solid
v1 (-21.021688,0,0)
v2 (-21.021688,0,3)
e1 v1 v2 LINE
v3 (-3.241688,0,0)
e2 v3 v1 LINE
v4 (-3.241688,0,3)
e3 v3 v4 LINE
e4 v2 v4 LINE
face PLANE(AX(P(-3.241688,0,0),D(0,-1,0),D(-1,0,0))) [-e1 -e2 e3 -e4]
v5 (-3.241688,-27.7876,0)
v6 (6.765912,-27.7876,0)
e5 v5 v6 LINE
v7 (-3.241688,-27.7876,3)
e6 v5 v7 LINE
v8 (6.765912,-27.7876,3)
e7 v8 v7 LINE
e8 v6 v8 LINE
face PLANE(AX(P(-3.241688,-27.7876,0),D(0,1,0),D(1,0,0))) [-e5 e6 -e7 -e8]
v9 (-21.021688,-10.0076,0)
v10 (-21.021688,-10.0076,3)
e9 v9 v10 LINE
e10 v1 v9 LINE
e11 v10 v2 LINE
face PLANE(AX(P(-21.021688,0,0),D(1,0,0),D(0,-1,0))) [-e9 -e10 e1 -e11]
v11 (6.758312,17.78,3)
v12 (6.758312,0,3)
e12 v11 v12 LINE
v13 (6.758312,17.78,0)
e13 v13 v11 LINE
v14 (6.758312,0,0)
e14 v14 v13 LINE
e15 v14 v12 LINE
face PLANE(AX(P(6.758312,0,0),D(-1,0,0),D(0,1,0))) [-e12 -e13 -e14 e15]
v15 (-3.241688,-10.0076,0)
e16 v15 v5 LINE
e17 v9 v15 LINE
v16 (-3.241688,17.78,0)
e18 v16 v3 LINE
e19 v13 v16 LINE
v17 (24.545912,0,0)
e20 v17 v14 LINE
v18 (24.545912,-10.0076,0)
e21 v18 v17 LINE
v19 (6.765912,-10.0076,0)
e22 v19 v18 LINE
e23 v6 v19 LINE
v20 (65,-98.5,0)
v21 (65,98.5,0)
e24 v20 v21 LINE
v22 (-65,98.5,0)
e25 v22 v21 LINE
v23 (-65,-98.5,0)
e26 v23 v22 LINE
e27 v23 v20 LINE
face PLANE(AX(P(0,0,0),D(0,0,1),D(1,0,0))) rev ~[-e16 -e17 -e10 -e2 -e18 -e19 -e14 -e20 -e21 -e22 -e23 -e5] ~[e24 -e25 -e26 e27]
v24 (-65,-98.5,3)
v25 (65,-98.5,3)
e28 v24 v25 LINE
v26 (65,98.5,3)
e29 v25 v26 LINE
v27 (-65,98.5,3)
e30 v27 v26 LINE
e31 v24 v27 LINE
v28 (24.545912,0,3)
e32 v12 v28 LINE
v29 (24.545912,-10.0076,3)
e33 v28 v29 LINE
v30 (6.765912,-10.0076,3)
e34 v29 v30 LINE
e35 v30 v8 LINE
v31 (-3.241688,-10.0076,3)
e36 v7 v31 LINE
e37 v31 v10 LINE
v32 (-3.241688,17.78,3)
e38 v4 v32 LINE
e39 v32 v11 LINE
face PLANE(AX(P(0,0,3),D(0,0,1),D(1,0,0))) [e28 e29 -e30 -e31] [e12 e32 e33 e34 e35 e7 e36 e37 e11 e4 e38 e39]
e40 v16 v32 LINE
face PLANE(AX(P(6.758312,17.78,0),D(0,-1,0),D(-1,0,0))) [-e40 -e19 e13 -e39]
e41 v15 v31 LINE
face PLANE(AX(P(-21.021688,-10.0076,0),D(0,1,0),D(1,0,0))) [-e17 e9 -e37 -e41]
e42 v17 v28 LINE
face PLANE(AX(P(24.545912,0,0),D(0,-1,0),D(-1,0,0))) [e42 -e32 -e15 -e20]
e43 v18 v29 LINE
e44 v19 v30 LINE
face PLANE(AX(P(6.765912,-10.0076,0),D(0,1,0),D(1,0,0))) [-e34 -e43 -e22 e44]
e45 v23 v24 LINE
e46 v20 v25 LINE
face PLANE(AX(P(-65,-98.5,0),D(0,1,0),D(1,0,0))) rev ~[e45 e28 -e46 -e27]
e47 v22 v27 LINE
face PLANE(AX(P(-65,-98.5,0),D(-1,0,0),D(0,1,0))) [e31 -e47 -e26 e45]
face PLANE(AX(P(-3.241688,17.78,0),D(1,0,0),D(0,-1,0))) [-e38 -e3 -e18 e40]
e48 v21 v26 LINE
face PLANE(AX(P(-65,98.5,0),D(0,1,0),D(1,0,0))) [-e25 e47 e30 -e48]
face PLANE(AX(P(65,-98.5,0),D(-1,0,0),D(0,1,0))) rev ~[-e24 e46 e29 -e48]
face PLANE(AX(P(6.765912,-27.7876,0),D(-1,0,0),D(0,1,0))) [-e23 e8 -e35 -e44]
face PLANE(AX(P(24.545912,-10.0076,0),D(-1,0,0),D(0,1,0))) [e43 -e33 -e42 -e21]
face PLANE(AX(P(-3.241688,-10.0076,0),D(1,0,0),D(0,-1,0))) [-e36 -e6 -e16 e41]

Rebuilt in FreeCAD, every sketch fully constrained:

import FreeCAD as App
import Part
import Sketcher
from FreeCAD import Vector
Q = App.Units.Quantity


def add_polygon(sketch, points):
    """Adds a closed chain of lines whose ends are joined by coincident constraints."""
    first, n = sketch.GeometryCount, len(points)
    for a, b in zip(points, points[1:] + points[:1]):
        sketch.addGeometry(Part.LineSegment(App.Vector(*a, 0), App.Vector(*b, 0)), False)
    for i in range(n):
        sketch.addConstraint(Sketcher.Constraint("Coincident", first + i, 2, first + (i + 1) % n, 1))

doc = App.newDocument("Part")
params = doc.addObject("Spreadsheet::Sheet", "Params")
for row, (alias, value) in enumerate([
    ("sketch1_width", "130 mm"),
    ("sketch1_height", "197 mm"),
    ("pad1_length", "3 mm"),
    ("sketch2_width", "10 mm"),
    ("sketch2_width2", "17.78 mm"),
    ("pocket1_length", "9.652 mm"),
], start=1):
    params.set(f"A{row}", alias)
    params.set(f"B{row}", "=" + value)
    params.setAlias(f"B{row}", alias)

body = doc.addObject("PartDesign::Body", "Body")

sketch1 = body.newObject("Sketcher::SketchObject", "Sketch")
sketch1.AttachmentSupport = (doc.getObject("XY_Plane"), [""])
sketch1.MapMode = "FlatFace"
add_polygon(sketch1, [(-65, 98), (-65, -98), (65, -98), (65, 98)])
sketch1.addConstraint([
    Sketcher.Constraint("Vertical", 0),
    Sketcher.Constraint("Horizontal", 1),
    Sketcher.Constraint("Vertical", 2),
    Sketcher.Constraint("Horizontal", 3),
    Sketcher.Constraint("Symmetric", 0, 2, 2, 2, -1, 1),
    Sketcher.Constraint("DistanceX", 1, 1, 1, 2, Q("130 mm")),
    Sketcher.Constraint("DistanceY", 0, 2, 0, 1, Q("197 mm")),
])
sketch1.setExpression("Constraints[9]", "Params.sketch1_width")
sketch1.setExpression("Constraints[10]", "Params.sketch1_height")
pad1 = body.newObject("PartDesign::Pad", "Pad")
pad1.Profile = sketch1
pad1.setExpression("Length", "Params.pad1_length")

sketch2 = body.newObject("Sketcher::SketchObject", "Sketch001")
sketch2.AttachmentSupport = (doc.getObject("XY_Plane"), [""])
sketch2.MapMode = "FlatFace"
add_polygon(sketch2, [(7, 0), (7, 18), (-3, 18), (-3, 0), (-21, 0), (-21, -10), (-3, -10), (-3, -28), (7, -28), (7, -10), (25, -10), (25, 0)])
sketch2.addConstraint([
    Sketcher.Constraint("Vertical", 0),
    Sketcher.Constraint("Horizontal", 1),
    Sketcher.Constraint("Vertical", 2),
    Sketcher.Constraint("Horizontal", 3),
    Sketcher.Constraint("Vertical", 4),
    Sketcher.Constraint("Horizontal", 5),
    Sketcher.Constraint("Vertical", 6),
    Sketcher.Constraint("Horizontal", 7),
    Sketcher.Constraint("Vertical", 8),
    Sketcher.Constraint("Horizontal", 9),
    Sketcher.Constraint("Vertical", 10),
    Sketcher.Constraint("Horizontal", 11),
    Sketcher.Constraint("PointOnObject", 2, 2, -1),
    Sketcher.Constraint("PointOnObject", 10, 2, -1),
    Sketcher.Constraint("Horizontal", 5, 2, 8, 2),
    Sketcher.Constraint("Vertical", 2, 2, 5, 2),
    Sketcher.Constraint("Equal", 5, 9),
    Sketcher.Constraint("Equal", 9, 0),
    Sketcher.Constraint("Equal", 7, 4),
    Sketcher.Constraint("Equal", 2, 6),
    Sketcher.Constraint("DistanceX", 1, 2, 1, 1, Q("10 mm")),
    Sketcher.Constraint("DistanceX", 3, 2, 3, 1, Q("17.78 mm")),
    Sketcher.Constraint("DistanceX", 7, 1, 7, 2, Q("10.0076 mm")),
    Sketcher.Constraint("DistanceX", 3, 2, -1, 1, Q("21.021688 mm")),
])
sketch2.setExpression("Constraints[32]", "Params.sketch2_width")
sketch2.setExpression("Constraints[33]", "Params.sketch2_width2")
pocket1 = body.newObject("PartDesign::Pocket", "Pocket")
pocket1.Profile = sketch2
pocket1.setExpression("Length", "Params.pocket1_length")
pocket1.Reversed = True

doc.recompute()
